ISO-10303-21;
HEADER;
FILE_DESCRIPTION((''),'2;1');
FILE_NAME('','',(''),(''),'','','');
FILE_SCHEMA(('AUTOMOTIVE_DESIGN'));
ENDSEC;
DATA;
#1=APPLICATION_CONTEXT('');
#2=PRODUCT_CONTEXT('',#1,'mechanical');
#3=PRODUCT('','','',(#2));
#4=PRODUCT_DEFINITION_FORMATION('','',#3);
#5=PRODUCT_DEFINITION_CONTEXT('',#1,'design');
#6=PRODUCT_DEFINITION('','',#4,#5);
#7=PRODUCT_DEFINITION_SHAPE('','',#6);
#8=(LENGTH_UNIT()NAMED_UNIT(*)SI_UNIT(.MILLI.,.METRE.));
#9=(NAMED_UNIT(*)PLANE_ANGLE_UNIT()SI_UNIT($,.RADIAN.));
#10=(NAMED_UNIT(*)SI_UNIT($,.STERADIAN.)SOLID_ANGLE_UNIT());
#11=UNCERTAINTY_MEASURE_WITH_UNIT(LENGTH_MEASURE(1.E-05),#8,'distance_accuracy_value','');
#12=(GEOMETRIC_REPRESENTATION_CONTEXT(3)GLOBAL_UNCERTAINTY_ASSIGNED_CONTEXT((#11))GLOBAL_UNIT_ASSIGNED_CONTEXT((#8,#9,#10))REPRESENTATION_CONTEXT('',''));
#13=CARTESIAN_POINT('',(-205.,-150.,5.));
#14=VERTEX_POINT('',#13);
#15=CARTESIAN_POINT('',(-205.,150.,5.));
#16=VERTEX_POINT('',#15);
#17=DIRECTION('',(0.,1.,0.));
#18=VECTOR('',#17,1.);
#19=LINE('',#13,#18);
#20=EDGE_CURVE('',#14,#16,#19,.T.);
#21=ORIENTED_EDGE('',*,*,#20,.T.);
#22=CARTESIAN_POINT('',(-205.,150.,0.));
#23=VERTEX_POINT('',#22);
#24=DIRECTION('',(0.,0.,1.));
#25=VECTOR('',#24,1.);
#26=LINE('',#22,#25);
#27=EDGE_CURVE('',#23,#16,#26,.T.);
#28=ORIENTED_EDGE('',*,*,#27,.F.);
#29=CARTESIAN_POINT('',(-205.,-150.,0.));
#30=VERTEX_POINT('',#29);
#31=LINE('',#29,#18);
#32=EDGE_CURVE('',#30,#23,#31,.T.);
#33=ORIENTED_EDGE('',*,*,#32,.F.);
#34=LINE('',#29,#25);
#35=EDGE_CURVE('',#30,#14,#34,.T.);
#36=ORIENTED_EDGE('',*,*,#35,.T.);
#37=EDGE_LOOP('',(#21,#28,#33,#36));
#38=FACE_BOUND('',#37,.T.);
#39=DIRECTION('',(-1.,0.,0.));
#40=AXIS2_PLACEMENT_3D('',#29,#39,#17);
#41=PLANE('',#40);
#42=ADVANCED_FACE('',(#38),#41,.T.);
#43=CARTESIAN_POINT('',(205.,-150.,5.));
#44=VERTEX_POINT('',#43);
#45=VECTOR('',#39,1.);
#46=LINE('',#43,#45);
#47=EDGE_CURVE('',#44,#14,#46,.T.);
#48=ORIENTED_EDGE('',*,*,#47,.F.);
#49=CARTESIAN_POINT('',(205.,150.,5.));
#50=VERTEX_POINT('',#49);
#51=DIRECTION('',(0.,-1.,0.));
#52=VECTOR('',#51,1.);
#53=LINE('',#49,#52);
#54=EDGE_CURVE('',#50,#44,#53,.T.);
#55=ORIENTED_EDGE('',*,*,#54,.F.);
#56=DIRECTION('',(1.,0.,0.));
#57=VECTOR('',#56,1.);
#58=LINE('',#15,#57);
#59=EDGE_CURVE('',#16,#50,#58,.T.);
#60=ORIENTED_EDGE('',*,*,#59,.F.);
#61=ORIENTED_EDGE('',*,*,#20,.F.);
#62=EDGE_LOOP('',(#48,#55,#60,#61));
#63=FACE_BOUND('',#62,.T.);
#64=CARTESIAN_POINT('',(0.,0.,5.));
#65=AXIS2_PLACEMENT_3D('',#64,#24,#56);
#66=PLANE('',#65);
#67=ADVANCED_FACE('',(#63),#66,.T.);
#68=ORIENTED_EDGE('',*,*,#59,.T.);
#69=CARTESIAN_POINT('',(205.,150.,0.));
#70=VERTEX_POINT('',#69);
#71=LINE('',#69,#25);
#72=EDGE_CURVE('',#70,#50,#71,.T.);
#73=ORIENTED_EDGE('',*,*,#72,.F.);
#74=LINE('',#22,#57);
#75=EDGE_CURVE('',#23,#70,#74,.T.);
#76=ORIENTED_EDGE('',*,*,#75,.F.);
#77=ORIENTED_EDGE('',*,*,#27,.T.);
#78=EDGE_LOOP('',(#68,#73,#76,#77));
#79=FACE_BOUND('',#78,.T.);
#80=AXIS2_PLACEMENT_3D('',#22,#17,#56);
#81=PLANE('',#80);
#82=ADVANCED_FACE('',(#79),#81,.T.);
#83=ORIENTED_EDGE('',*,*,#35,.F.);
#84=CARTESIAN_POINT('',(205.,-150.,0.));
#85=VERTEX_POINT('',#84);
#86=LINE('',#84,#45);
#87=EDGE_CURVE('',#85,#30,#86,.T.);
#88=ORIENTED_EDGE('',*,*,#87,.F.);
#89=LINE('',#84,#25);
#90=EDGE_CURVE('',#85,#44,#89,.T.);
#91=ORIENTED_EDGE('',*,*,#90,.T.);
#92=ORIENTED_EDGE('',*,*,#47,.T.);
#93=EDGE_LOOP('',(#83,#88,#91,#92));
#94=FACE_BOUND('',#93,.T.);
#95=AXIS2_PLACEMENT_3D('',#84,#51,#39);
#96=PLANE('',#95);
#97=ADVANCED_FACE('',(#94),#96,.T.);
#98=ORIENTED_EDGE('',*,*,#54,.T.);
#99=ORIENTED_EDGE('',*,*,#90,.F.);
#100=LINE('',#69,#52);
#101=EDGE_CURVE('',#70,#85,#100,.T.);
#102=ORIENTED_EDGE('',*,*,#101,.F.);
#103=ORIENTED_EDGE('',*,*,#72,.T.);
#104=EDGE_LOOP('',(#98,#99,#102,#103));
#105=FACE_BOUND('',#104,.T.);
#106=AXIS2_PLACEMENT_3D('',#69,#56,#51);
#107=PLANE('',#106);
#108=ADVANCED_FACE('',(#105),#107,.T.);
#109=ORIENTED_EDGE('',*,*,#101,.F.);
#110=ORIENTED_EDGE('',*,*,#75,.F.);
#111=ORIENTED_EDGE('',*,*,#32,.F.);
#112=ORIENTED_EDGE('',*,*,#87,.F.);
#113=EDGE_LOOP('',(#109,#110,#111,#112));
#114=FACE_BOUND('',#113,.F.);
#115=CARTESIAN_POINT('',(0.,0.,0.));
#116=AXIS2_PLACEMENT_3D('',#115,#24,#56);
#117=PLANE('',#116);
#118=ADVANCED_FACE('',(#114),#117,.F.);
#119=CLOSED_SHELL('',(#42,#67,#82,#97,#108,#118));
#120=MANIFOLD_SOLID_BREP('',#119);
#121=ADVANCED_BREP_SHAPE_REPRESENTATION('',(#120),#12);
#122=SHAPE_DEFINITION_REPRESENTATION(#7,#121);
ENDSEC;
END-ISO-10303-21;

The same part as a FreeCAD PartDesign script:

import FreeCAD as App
import Part
import Sketcher

V = App.Vector
Q = App.Units.Quantity

doc = App.newDocument("Part")
body = doc.addObject("PartDesign::Body", "Body")

sketch1 = doc.addObject("Sketcher::SketchObject", "Sketch")
body.addObject(sketch1)
sketch1.AttachmentSupport = (doc.XY_Plane, [""])
sketch1.MapMode = "FlatFace"
sketch1.addGeometry([
    Part.LineSegment(V(205, 150, 0), V(-205, 150, 0)),
    Part.LineSegment(V(-205, 150, 0), V(-205, -150, 0)),
    Part.LineSegment(V(-205, -150, 0), V(205, -150, 0)),
    Part.LineSegment(V(205, -150, 0), V(205, 150, 0)),
], False)
sketch1.addConstraint([
    Sketcher.Constraint("Coincident", 0, 2, 1, 1),
    Sketcher.Constraint("Coincident", 1, 2, 2, 1),
    Sketcher.Constraint("Coincident", 2, 2, 3, 1),
    Sketcher.Constraint("Coincident", 3, 2, 0, 1),
    Sketcher.Constraint("Horizontal", 0),
    Sketcher.Constraint("Vertical", 1),
    Sketcher.Constraint("Horizontal", 2),
    Sketcher.Constraint("Vertical", 3),
    Sketcher.Constraint("Symmetric", 0, 2, 2, 2, -1, 1),
    Sketcher.Constraint("DistanceX", 0, 2, 0, 1, Q("410 mm")),
    Sketcher.Constraint("DistanceY", 1, 2, 1, 1, Q("300 mm")),
])
pad1 = doc.addObject("PartDesign::Pad", "Pad")
body.addObject(pad1)
pad1.Profile = sketch1
pad1.Length = 5

doc.recompute()
